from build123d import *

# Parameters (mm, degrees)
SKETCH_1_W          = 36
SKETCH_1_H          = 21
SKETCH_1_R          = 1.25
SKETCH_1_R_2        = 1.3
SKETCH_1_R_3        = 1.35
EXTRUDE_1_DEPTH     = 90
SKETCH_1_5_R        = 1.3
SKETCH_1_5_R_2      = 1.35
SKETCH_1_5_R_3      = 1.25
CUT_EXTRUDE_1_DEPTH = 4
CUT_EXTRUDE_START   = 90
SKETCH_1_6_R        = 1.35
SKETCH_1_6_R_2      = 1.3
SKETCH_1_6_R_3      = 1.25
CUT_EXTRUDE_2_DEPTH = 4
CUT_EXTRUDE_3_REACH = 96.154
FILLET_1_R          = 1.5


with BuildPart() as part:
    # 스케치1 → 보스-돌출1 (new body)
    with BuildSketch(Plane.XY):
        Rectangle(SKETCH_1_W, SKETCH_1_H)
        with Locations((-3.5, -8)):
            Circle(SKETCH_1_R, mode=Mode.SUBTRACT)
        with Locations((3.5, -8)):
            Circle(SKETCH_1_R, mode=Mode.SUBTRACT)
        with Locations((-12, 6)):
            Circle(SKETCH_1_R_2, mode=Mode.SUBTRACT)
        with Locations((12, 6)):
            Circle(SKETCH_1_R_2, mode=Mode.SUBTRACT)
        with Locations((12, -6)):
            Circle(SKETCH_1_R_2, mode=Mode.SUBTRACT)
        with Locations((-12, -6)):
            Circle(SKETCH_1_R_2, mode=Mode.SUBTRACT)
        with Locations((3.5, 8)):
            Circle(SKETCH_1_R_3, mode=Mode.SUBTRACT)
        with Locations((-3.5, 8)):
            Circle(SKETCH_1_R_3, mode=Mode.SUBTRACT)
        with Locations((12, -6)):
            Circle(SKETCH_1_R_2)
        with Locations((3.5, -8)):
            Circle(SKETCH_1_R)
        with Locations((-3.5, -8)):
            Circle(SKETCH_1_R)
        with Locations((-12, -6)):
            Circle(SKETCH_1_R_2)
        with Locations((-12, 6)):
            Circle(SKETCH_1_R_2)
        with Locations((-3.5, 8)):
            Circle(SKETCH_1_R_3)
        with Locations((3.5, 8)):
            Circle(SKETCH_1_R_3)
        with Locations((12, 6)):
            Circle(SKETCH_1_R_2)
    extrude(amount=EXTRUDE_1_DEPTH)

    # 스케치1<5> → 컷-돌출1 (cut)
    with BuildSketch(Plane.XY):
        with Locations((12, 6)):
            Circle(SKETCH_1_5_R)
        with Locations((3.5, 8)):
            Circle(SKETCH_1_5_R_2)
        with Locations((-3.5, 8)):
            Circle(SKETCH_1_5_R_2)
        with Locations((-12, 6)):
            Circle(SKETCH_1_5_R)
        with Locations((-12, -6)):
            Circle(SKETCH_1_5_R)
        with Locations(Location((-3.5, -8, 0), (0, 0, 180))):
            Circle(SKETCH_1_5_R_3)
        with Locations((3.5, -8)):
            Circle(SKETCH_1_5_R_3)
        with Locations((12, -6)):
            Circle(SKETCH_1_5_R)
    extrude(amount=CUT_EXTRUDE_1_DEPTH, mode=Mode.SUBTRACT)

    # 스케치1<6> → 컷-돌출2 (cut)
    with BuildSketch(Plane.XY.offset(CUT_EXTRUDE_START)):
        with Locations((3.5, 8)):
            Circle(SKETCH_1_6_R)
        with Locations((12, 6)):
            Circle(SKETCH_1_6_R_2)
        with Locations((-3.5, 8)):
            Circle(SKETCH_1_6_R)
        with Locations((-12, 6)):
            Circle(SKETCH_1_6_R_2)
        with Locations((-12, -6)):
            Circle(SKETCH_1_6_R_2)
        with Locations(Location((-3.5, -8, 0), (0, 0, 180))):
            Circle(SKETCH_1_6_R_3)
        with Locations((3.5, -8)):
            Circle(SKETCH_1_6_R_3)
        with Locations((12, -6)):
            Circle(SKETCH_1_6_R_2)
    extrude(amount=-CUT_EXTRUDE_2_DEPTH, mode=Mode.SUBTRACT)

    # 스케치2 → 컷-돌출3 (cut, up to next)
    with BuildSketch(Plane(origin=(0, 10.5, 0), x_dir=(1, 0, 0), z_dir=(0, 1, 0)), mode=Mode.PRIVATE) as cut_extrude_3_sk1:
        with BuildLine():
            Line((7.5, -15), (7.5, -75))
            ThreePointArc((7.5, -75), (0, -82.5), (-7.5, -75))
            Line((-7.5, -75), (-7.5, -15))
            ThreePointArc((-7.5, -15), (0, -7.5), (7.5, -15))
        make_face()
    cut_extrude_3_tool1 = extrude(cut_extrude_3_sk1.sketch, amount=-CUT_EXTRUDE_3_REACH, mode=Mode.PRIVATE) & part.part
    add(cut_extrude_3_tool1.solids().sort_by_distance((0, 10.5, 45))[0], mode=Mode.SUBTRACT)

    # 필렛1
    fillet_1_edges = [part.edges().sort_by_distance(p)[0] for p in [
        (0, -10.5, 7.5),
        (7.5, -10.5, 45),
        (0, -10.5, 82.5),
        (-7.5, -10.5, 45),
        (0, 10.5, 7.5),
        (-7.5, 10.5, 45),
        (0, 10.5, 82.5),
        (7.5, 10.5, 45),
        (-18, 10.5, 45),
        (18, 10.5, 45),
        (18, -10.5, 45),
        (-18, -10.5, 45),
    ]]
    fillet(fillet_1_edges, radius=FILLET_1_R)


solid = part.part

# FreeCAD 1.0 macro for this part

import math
import FreeCAD as App
import Part
import Sketcher
Q = App.Units.Quantity


def edges_at(feature, points):
    """Names of the edges that pass closest to the given points."""
    edges = feature.Shape.Edges
    near = lambda p: min(range(len(edges)), key=lambda i: edges[i].distToShape(Part.Vertex(*p))[0])
    return sorted({f"Edge{near(p) + 1}" for p in points})

doc = App.newDocument("Part")
body = doc.addObject("PartDesign::Body", "Body")

sketch1 = body.newObject("Sketcher::SketchObject", "Sketch")
sketch1.AttachmentSupport = (doc.getObject("XY_Plane"), [""])
sketch1.MapMode = "FlatFace"
sketch1.addGeometry(Part.LineSegment(App.Vector(-18, 10, 0), App.Vector(-18, -10, 0)), False)
sketch1.addGeometry(Part.LineSegment(App.Vector(-18, -10, 0), App.Vector(18, -10, 0)), False)
sketch1.addGeometry(Part.LineSegment(App.Vector(18, -10, 0), App.Vector(18, 10, 0)), False)
sketch1.addGeometry(Part.LineSegment(App.Vector(18, 10, 0), App.Vector(-18, 10, 0)), False)
sketch1.addConstraint(Sketcher.Constraint("Coincident", 0, 2, 1, 1))
sketch1.addConstraint(Sketcher.Constraint("Coincident", 1, 2, 2, 1))
sketch1.addConstraint(Sketcher.Constraint("Coincident", 2, 2, 3, 1))
sketch1.addConstraint(Sketcher.Constraint("Coincident", 3, 2, 0, 1))
sketch1.addConstraint(Sketcher.Constraint("Vertical", 0))
sketch1.addConstraint(Sketcher.Constraint("Horizontal", 1))
sketch1.addConstraint(Sketcher.Constraint("Vertical", 2))
sketch1.addConstraint(Sketcher.Constraint("Horizontal", 3))
sketch1.addConstraint(Sketcher.Constraint("Symmetric", 0, 2, 2, 2, -1, 1))
sketch1.addConstraint(Sketcher.Constraint("DistanceX", 1, 1, 1, 2, Q("36 mm")))
sketch1.addConstraint(Sketcher.Constraint("DistanceY", 0, 2, 0, 1, Q("21 mm")))
pad1 = body.newObject("PartDesign::Pad", "Pad")
pad1.Profile = sketch1
pad1.Length = 90

sketch2 = body.newObject("Sketcher::SketchObject", "Sketch001")
sketch2.AttachmentSupport = (doc.getObject("XY_Plane"), [""])
sketch2.MapMode = "FlatFace"
sketch2.addGeometry(Part.Circle(App.Vector(12, 6, 0), App.Vector(0, 0, 1), 1.3), False)
sketch2.addGeometry(Part.Circle(App.Vector(3.5, 8, 0), App.Vector(0, 0, 1), 1.4), False)
sketch2.addGeometry(Part.Circle(App.Vector(-3.5, 8, 0), App.Vector(0, 0, 1), 1.4), False)
sketch2.addGeometry(Part.Circle(App.Vector(-12, 6, 0), App.Vector(0, 0, 1), 1.3), False)
sketch2.addGeometry(Part.Circle(App.Vector(-12, -6, 0), App.Vector(0, 0, 1), 1.3), False)
sketch2.addGeometry(Part.Circle(App.Vector(-3.5, -8, 0), App.Vector(0, 0, 1), 1.2), False)
sketch2.addGeometry(Part.Circle(App.Vector(3.5, -8, 0), App.Vector(0, 0, 1), 1.2), False)
sketch2.addGeometry(Part.Circle(App.Vector(12, -6, 0), App.Vector(0, 0, 1), 1.3), False)
sketch2.addConstraint(Sketcher.Constraint("Equal", 1, 2))
sketch2.addConstraint(Sketcher.Constraint("Equal", 0, 3))
sketch2.addConstraint(Sketcher.Constraint("Equal", 3, 4))
sketch2.addConstraint(Sketcher.Constraint("Equal", 5, 6))
sketch2.addConstraint(Sketcher.Constraint("Equal", 4, 7))
sketch2.addConstraint(Sketcher.Constraint("Symmetric", 0, 3, 4, 3, -1, 1))
sketch2.addConstraint(Sketcher.Constraint("Symmetric", 1, 3, 5, 3, -1, 1))
sketch2.addConstraint(Sketcher.Constraint("Symmetric", 2, 3, 6, 3, -1, 1))
sketch2.addConstraint(Sketcher.Constraint("Symmetric", 3, 3, 7, 3, -1, 1))
sketch2.addConstraint(Sketcher.Constraint("Symmetric", 1, 3, 2, 3, -2))
sketch2.addConstraint(Sketcher.Constraint("Symmetric", 0, 3, 3, 3, -2))
sketch2.addConstraint(Sketcher.Constraint("Diameter", 0, Q("2.6 mm")))
sketch2.addConstraint(Sketcher.Constraint("Diameter", 1, Q("2.7 mm")))
sketch2.addConstraint(Sketcher.Constraint("Diameter", 5, Q("2.5 mm")))
sketch2.addConstraint(Sketcher.Constraint("DistanceX", -1, 1, 0, 3, Q("12 mm")))
sketch2.addConstraint(Sketcher.Constraint("DistanceY", -1, 1, 0, 3, Q("6 mm")))
sketch2.addConstraint(Sketcher.Constraint("DistanceY", -1, 1, 1, 3, Q("8 mm")))
sketch2.addConstraint(Sketcher.Constraint("DistanceX", 2, 3, 1, 3, Q("7 mm")))
pocket1 = body.newObject("PartDesign::Pocket", "Pocket")
pocket1.Profile = sketch2
pocket1.Length = 4
pocket1.Reversed = True

sketch3 = body.newObject("Sketcher::SketchObject", "Sketch002")
sketch3.AttachmentSupport = (doc.getObject("XY_Plane"), [""])
sketch3.MapMode = "FlatFace"
sketch3.AttachmentOffset = App.Placement(App.Vector(0, 0, 90), App.Rotation())
sketch3.addGeometry(Part.Circle(App.Vector(3.5, 8, 0), App.Vector(0, 0, 1), 1.4), False)
sketch3.addGeometry(Part.Circle(App.Vector(12, 6, 0), App.Vector(0, 0, 1), 1.3), False)
sketch3.addGeometry(Part.Circle(App.Vector(-3.5, 8, 0), App.Vector(0, 0, 1), 1.4), False)
sketch3.addGeometry(Part.Circle(App.Vector(-12, 6, 0), App.Vector(0, 0, 1), 1.3), False)
sketch3.addGeometry(Part.Circle(App.Vector(-12, -6, 0), App.Vector(0, 0, 1), 1.3), False)
sketch3.addGeometry(Part.Circle(App.Vector(-3.5, -8, 0), App.Vector(0, 0, 1), 1.2), False)
sketch3.addGeometry(Part.Circle(App.Vector(3.5, -8, 0), App.Vector(0, 0, 1), 1.2), False)
sketch3.addGeometry(Part.Circle(App.Vector(12, -6, 0), App.Vector(0, 0, 1), 1.3), False)
sketch3.addConstraint(Sketcher.Constraint("Equal", 0, 2))
sketch3.addConstraint(Sketcher.Constraint("Equal", 1, 3))
sketch3.addConstraint(Sketcher.Constraint("Equal", 3, 4))
sketch3.addConstraint(Sketcher.Constraint("Equal", 5, 6))
sketch3.addConstraint(Sketcher.Constraint("Equal", 4, 7))
sketch3.addConstraint(Sketcher.Constraint("Symmetric", 1, 3, 4, 3, -1, 1))
sketch3.addConstraint(Sketcher.Constraint("Symmetric", 0, 3, 5, 3, -1, 1))
sketch3.addConstraint(Sketcher.Constraint("Symmetric", 2, 3, 6, 3, -1, 1))
sketch3.addConstraint(Sketcher.Constraint("Symmetric", 3, 3, 7, 3, -1, 1))
sketch3.addConstraint(Sketcher.Constraint("Symmetric", 0, 3, 2, 3, -2))
sketch3.addConstraint(Sketcher.Constraint("Symmetric", 1, 3, 3, 3, -2))
sketch3.addConstraint(Sketcher.Constraint("Diameter", 0, Q("2.7 mm")))
sketch3.addConstraint(Sketcher.Constraint("Diameter", 1, Q("2.6 mm")))
sketch3.addConstraint(Sketcher.Constraint("Diameter", 5, Q("2.5 mm")))
sketch3.addConstraint(Sketcher.Constraint("DistanceY", -1, 1, 0, 3, Q("8 mm")))
sketch3.addConstraint(Sketcher.Constraint("DistanceX", -1, 1, 1, 3, Q("12 mm")))
sketch3.addConstraint(Sketcher.Constraint("DistanceY", -1, 1, 1, 3, Q("6 mm")))
sketch3.addConstraint(Sketcher.Constraint("DistanceX", 2, 3, 0, 3, Q("7 mm")))
pocket2 = body.newObject("PartDesign::Pocket", "Pocket001")
pocket2.Profile = sketch3
pocket2.Length = 4

sketch4 = body.newObject("Sketcher::SketchObject", "Sketch003")
sketch4.AttachmentSupport = (doc.getObject("XZ_Plane"), [""])
sketch4.MapMode = "FlatFace"
sketch4.AttachmentOffset = App.Placement(App.Vector(0, 0, -10.5), App.Rotation())
sketch4.addGeometry(Part.LineSegment(App.Vector(8, 75, 0), App.Vector(8, 15, 0)), False)
sketch4.addGeometry(Part.ArcOfCircle(Part.Circle(App.Vector(0, 15, 0), App.Vector(0, 0, 1), 8), math.radians(180), math.radians(360)), False)
sketch4.addGeometry(Part.LineSegment(App.Vector(-8, 15, 0), App.Vector(-8, 75, 0)), False)
sketch4.addGeometry(Part.ArcOfCircle(Part.Circle(App.Vector(0, 75, 0), App.Vector(0, 0, 1), 8), math.radians(0), math.radians(180)), False)
sketch4.addConstraint(Sketcher.Constraint("Tangent", 0, 2, 1, 2))
sketch4.addConstraint(Sketcher.Constraint("Tangent", 1, 1, 2, 1))
sketch4.addConstraint(Sketcher.Constraint("Tangent", 2, 2, 3, 2))
sketch4.addConstraint(Sketcher.Constraint("Tangent", 3, 1, 0, 1))
sketch4.addConstraint(Sketcher.Constraint("Vertical", 0))
sketch4.addConstraint(Sketcher.Constraint("Vertical", 2))
sketch4.addConstraint(Sketcher.Constraint("PointOnObject", 1, 3, -2))
sketch4.addConstraint(Sketcher.Constraint("Radius", 1, Q("7.5 mm")))
sketch4.addConstraint(Sketcher.Constraint("DistanceY", 0, 2, 0, 1, Q("60 mm")))
sketch4.addConstraint(Sketcher.Constraint("DistanceY", -1, 1, 1, 3, Q("15 mm")))
pocket3 = body.newObject("PartDesign::Pocket", "Pocket002")
pocket3.Profile = sketch4
pocket3.Type = "UpToFirst"
pocket3.Reversed = True
doc.recompute()

fillet = body.newObject("PartDesign::Fillet", "Fillet")
fillet.Base = (pocket3, edges_at(pocket3, [
    (0, -10.5, 7.5),
    (7.5, -10.5, 45),
    (0, -10.5, 82.5),
    (-7.5, -10.5, 45),
    (0, 10.5, 7.5),
    (-7.5, 10.5, 45),
    (0, 10.5, 82.5),
    (7.5, 10.5, 45),
    (-18, 10.5, 45),
    (18, 10.5, 45),
    (18, -10.5, 45),
    (-18, -10.5, 45),
]))
fillet.Radius = 1.5

doc.recompute()
